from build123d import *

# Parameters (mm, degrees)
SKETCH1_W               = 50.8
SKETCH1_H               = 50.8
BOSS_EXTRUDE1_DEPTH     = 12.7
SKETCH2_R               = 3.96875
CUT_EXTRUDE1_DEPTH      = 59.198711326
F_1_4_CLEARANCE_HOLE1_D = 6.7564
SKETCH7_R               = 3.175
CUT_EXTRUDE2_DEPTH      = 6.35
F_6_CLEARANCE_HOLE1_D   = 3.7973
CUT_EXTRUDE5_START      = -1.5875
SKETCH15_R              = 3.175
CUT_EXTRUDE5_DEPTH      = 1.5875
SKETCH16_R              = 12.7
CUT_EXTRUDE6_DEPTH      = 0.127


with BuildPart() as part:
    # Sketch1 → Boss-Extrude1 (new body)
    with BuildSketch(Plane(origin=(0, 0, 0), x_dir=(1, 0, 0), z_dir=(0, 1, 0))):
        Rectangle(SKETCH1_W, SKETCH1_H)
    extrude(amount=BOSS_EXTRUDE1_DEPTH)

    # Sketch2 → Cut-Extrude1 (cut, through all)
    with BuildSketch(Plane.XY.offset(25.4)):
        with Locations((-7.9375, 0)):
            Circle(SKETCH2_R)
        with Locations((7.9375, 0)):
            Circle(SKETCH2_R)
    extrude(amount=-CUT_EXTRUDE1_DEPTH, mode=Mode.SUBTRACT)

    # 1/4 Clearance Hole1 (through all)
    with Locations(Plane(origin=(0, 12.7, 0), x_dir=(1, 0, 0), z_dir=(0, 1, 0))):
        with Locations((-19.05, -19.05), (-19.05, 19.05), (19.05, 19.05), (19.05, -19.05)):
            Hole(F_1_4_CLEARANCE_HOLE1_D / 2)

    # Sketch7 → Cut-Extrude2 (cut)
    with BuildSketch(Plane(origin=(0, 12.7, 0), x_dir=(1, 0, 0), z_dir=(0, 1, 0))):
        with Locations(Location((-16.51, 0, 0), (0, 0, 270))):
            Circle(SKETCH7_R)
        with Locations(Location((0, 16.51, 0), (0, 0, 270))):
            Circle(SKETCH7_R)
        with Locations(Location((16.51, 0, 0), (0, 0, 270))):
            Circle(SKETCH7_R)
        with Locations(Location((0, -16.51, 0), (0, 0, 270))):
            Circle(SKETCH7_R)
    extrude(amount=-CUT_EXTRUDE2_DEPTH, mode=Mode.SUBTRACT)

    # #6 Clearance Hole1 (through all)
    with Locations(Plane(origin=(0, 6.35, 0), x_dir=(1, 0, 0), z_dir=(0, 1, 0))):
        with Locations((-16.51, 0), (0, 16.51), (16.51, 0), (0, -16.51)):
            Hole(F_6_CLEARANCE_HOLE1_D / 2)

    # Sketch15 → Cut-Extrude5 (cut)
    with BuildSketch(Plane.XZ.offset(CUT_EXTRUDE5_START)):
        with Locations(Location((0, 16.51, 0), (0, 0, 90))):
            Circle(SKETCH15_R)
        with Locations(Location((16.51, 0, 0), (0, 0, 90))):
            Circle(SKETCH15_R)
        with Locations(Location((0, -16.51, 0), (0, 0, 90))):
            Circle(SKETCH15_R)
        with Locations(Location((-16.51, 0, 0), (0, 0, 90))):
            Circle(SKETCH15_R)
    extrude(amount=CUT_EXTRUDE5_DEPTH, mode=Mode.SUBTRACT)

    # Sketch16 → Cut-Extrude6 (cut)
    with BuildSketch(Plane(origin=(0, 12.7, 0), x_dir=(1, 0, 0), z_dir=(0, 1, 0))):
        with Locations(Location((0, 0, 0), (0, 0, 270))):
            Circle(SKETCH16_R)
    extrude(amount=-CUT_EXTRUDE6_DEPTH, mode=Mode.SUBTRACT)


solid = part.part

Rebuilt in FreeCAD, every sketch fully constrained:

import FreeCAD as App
import Part
import Sketcher
from FreeCAD import Vector
Q = App.Units.Quantity


def add_polygon(sketch, points):
    """Adds a closed chain of lines whose ends are joined by coincident constraints."""
    first, n = sketch.GeometryCount, len(points)
    for a, b in zip(points, points[1:] + points[:1]):
        sketch.addGeometry(Part.LineSegment(App.Vector(*a, 0), App.Vector(*b, 0)), False)
    for i in range(n):
        sketch.addConstraint(Sketcher.Constraint("Coincident", first + i, 2, first + (i + 1) % n, 1))

doc = App.newDocument("Part")
body = doc.addObject("PartDesign::Body", "Body")

# Sketch on XZ plane
sketch1 = body.newObject("Sketcher::SketchObject", "Sketch")
sketch1.AttachmentSupport = (doc.getObject("XZ_Plane"), [""])
sketch1.MapMode = "FlatFace"
add_polygon(sketch1, [(-25.4, -25.4), (-25.4, 25.4), (25.4, 25.4), (25.4, -25.4)])  # lines 0-3
sketch1.addConstraint([
    Sketcher.Constraint("Vertical", 0),
    Sketcher.Constraint("Horizontal", 1),
    Sketcher.Constraint("Vertical", 2),
    Sketcher.Constraint("Horizontal", 3),
    Sketcher.Constraint("Symmetric", 0, 2, 2, 2, -1, 1),
    Sketcher.Constraint("Equal", 3, 0),
    Sketcher.Constraint("DistanceX", 1, 1, 1, 2, Q("2 in")),
])
pad1 = body.newObject("PartDesign::Pad", "Pad")
pad1.Profile = sketch1
pad1.Length = Q("0.5 in")
pad1.Reversed = True

# Sketch on XY plane
sketch2 = body.newObject("Sketcher::SketchObject", "Sketch001")
sketch2.AttachmentSupport = (doc.getObject("XY_Plane"), [""])
sketch2.MapMode = "FlatFace"
sketch2.AttachmentOffset = App.Placement(Vector(0, 0, 1 * 25.4), App.Rotation())
sketch2.addGeometry([
    Part.Circle(Vector(-7.9375, 0, 0), Vector(0, 0, 1), 3.96875),
    Part.Circle(Vector(7.9375, 0, 0), Vector(0, 0, 1), 3.96875),
], False)
sketch2.addConstraint([
    Sketcher.Constraint("Equal", 0, 1),
    Sketcher.Constraint("Symmetric", 0, 3, 1, 3, -1, 1),
    Sketcher.Constraint("PointOnObject", 0, 3, -1),
    Sketcher.Constraint("Diameter", 0, Q("0.3125 in")),
    Sketcher.Constraint("DistanceX", 0, 3, -1, 1, Q("0.3125 in")),
])
pocket1 = body.newObject("PartDesign::Pocket", "Pocket")
pocket1.Profile = sketch2
pocket1.Type = "ThroughAll"

# Sketch on XZ plane
sketch3 = body.newObject("Sketcher::SketchObject", "Sketch002")
sketch3.AttachmentSupport = (doc.getObject("XZ_Plane"), [""])
sketch3.MapMode = "FlatFace"
sketch3.AttachmentOffset = App.Placement(Vector(0, 0, -0.5 * 25.4), App.Rotation())
sketch3.addGeometry([
    Part.Circle(Vector(-19.05, 19.05, 0), Vector(0, 0, 1), 3.3782),
    Part.Circle(Vector(-19.05, -19.05, 0), Vector(0, 0, 1), 3.3782),
    Part.Circle(Vector(19.05, -19.05, 0), Vector(0, 0, 1), 3.3782),
    Part.Circle(Vector(19.05, 19.05, 0), Vector(0, 0, 1), 3.3782),
], False)
sketch3.addConstraint([
    Sketcher.Constraint("Equal", 0, 1),
    Sketcher.Constraint("Equal", 1, 2),
    Sketcher.Constraint("Equal", 2, 3),
    Sketcher.Constraint("Symmetric", 0, 3, 2, 3, -1, 1),
    Sketcher.Constraint("Symmetric", 1, 3, 3, 3, -1, 1),
    Sketcher.Constraint("Symmetric", 1, 3, 2, 3, -2),
    Sketcher.Constraint("Diameter", 0, Q("0.266 in")),
    Sketcher.Constraint("DistanceY", 1, 3, 0, 3, Q("1.5 in")),
    Sketcher.Constraint("DistanceX", 1, 3, 2, 3, Q("1.5 in")),
])
doc.recompute()
hole = body.newObject("PartDesign::Hole", "Hole")
hole.Profile = sketch3
hole.ThreadType = "None"
hole.Diameter = Q("0.266 in")
hole.DepthType = "ThroughAll"
hole.Reversed = True

# Sketch on XZ plane
sketch4 = body.newObject("Sketcher::SketchObject", "Sketch003")
sketch4.AttachmentSupport = (doc.getObject("XZ_Plane"), [""])
sketch4.MapMode = "FlatFace"
sketch4.AttachmentOffset = App.Placement(Vector(0, 0, -0.5 * 25.4), App.Rotation())
sketch4.addGeometry([
    Part.Circle(Vector(-16.51, 0, 0), Vector(0, 0, 1), 3.175),
    Part.Circle(Vector(0, -16.51, 0), Vector(0, 0, 1), 3.175),
    Part.Circle(Vector(16.51, 0, 0), Vector(0, 0, 1), 3.175),
    Part.Circle(Vector(0, 16.51, 0), Vector(0, 0, 1), 3.175),
], False)
sketch4.addConstraint([
    Sketcher.Constraint("Equal", 0, 1),
    Sketcher.Constraint("Equal", 1, 2),
    Sketcher.Constraint("Equal", 2, 3),
    Sketcher.Constraint("Symmetric", 0, 3, 2, 3, -1, 1),
    Sketcher.Constraint("Symmetric", 1, 3, 3, 3, -1, 1),
    Sketcher.Constraint("PointOnObject", 0, 3, -1),
    Sketcher.Constraint("PointOnObject", 1, 3, -2),
    Sketcher.Constraint("Diameter", 0, Q("0.25 in")),
    Sketcher.Constraint("DistanceX", 0, 3, 2, 3, Q("1.3 in")),
    Sketcher.Constraint("DistanceY", 1, 3, 3, 3, Q("1.3 in")),
])
pocket2 = body.newObject("PartDesign::Pocket", "Pocket001")
pocket2.Profile = sketch4
pocket2.Length = Q("0.25 in")
pocket2.Reversed = True

# Sketch on XZ plane
sketch5 = body.newObject("Sketcher::SketchObject", "Sketch004")
sketch5.AttachmentSupport = (doc.getObject("XZ_Plane"), [""])
sketch5.MapMode = "FlatFace"
sketch5.AttachmentOffset = App.Placement(Vector(0, 0, -0.25 * 25.4), App.Rotation())
sketch5.addGeometry([
    Part.Circle(Vector(-16.51, 0, 0), Vector(0, 0, 1), 1.89865),
    Part.Circle(Vector(0, -16.51, 0), Vector(0, 0, 1), 1.89865),
    Part.Circle(Vector(16.51, 0, 0), Vector(0, 0, 1), 1.89865),
    Part.Circle(Vector(0, 16.51, 0), Vector(0, 0, 1), 1.89865),
], False)
sketch5.addConstraint([
    Sketcher.Constraint("Equal", 0, 1),
    Sketcher.Constraint("Equal", 1, 2),
    Sketcher.Constraint("Equal", 2, 3),
    Sketcher.Constraint("Symmetric", 0, 3, 2, 3, -1, 1),
    Sketcher.Constraint("Symmetric", 1, 3, 3, 3, -1, 1),
    Sketcher.Constraint("PointOnObject", 0, 3, -1),
    Sketcher.Constraint("PointOnObject", 1, 3, -2),
    Sketcher.Constraint("Diameter", 0, Q("0.1495 in")),
    Sketcher.Constraint("DistanceX", 0, 3, 2, 3, Q("1.3 in")),
    Sketcher.Constraint("DistanceY", 1, 3, 3, 3, Q("1.3 in")),
])
doc.recompute()
hole2 = body.newObject("PartDesign::Hole", "Hole001")
hole2.Profile = sketch5
hole2.ThreadType = "None"
hole2.Diameter = Q("0.1495 in")
hole2.DepthType = "ThroughAll"
hole2.Reversed = True

# Sketch on XZ plane
sketch6 = body.newObject("Sketcher::SketchObject", "Sketch005")
sketch6.AttachmentSupport = (doc.getObject("XZ_Plane"), [""])
sketch6.MapMode = "FlatFace"
sketch6.AttachmentOffset = App.Placement(Vector(0, 0, -0.0625 * 25.4), App.Rotation())
sketch6.addGeometry([
    Part.Circle(Vector(0, 16.51, 0), Vector(0, 0, 1), 3.175),
    Part.Circle(Vector(16.51, 0, 0), Vector(0, 0, 1), 3.175),
    Part.Circle(Vector(0, -16.51, 0), Vector(0, 0, 1), 3.175),
    Part.Circle(Vector(-16.51, 0, 0), Vector(0, 0, 1), 3.175),
], False)
sketch6.addConstraint([
    Sketcher.Constraint("Equal", 0, 1),
    Sketcher.Constraint("Equal", 1, 2),
    Sketcher.Constraint("Equal", 2, 3),
    Sketcher.Constraint("Symmetric", 0, 3, 2, 3, -1, 1),
    Sketcher.Constraint("Symmetric", 1, 3, 3, 3, -1, 1),
    Sketcher.Constraint("PointOnObject", 0, 3, -2),
    Sketcher.Constraint("PointOnObject", 1, 3, -1),
    Sketcher.Constraint("Diameter", 0, Q("0.25 in")),
    Sketcher.Constraint("DistanceY", 2, 3, 0, 3, Q("1.3 in")),
    Sketcher.Constraint("DistanceX", 3, 3, 1, 3, Q("1.3 in")),
])
pocket3 = body.newObject("PartDesign::Pocket", "Pocket002")
pocket3.Profile = sketch6
pocket3.Length = Q("0.0625 in")
pocket3.Reversed = True

# Sketch on XZ plane
sketch7 = body.newObject("Sketcher::SketchObject", "Sketch006")
sketch7.AttachmentSupport = (doc.getObject("XZ_Plane"), [""])
sketch7.MapMode = "FlatFace"
sketch7.AttachmentOffset = App.Placement(Vector(0, 0, -0.5 * 25.4), App.Rotation())
sketch7.addGeometry(Part.Circle(Vector(0, 0, 0), Vector(0, 0, 1), 12.7), False)
sketch7.addConstraint([
    Sketcher.Constraint("Coincident", 0, 3, -1, 1),
    Sketcher.Constraint("Diameter", 0, Q("1 in")),
])
pocket4 = body.newObject("PartDesign::Pocket", "Pocket003")
pocket4.Profile = sketch7
pocket4.Length = Q("0.005 in")
pocket4.Reversed = True

doc.recompute()
